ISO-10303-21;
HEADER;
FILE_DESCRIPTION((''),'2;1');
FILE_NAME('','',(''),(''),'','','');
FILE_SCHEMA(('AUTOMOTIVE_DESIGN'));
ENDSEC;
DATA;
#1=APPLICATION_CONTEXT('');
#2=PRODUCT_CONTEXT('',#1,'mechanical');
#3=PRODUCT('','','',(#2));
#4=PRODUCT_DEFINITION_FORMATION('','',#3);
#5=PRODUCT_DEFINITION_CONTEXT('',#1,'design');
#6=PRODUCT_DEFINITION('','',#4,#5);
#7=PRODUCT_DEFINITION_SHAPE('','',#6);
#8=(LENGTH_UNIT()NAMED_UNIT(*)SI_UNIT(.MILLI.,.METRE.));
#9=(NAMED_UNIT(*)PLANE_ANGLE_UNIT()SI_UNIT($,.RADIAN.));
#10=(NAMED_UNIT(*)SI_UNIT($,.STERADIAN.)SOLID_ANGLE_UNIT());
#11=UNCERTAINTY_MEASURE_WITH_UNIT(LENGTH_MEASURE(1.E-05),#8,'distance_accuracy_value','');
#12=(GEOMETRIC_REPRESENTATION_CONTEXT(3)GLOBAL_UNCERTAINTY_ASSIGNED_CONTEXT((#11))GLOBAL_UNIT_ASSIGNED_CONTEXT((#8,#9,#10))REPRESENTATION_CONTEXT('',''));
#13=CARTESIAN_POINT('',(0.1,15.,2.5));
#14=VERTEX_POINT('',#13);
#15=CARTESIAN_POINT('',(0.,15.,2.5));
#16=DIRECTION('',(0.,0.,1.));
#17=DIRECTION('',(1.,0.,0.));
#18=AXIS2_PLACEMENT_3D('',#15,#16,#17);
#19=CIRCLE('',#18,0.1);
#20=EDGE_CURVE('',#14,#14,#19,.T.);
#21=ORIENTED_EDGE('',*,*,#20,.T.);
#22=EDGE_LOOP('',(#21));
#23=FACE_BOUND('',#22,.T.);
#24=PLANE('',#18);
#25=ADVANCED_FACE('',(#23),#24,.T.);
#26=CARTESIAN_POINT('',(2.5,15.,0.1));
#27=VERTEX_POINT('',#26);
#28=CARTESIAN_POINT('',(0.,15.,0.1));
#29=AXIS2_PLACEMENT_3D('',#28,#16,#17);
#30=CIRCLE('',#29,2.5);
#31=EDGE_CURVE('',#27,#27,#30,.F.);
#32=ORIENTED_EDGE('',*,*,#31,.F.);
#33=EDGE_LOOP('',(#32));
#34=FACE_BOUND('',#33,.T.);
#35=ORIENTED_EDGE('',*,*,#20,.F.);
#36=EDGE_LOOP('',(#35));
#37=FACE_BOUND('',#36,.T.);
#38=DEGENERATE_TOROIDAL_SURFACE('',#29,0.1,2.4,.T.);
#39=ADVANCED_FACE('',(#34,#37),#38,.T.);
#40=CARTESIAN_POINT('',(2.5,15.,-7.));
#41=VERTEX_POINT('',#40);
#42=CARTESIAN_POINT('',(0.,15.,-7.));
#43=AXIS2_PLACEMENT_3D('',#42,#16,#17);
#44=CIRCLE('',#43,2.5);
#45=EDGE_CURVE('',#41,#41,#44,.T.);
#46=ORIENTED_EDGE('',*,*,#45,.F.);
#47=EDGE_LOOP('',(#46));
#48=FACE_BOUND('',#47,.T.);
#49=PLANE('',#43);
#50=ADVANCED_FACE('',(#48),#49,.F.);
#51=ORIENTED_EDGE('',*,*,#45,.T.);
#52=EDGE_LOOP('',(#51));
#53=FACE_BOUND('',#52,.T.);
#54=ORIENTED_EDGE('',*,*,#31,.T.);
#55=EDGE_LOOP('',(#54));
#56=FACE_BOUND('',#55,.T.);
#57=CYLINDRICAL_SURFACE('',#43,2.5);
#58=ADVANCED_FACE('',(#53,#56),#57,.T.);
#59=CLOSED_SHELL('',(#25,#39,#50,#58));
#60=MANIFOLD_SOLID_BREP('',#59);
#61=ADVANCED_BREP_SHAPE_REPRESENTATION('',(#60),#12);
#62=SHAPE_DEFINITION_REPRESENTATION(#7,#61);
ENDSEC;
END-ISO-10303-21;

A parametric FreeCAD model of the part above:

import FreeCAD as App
import Part
import Sketcher
from FreeCAD import Vector


def edges_at(feature, points):
    """Names of the edges that pass closest to the given points."""
    edges = feature.Shape.Edges
    near = lambda p: min(range(len(edges)), key=lambda i: edges[i].distToShape(Part.Vertex(*p))[0])
    return sorted({f"Edge{near(p) + 1}" for p in points})

doc = App.newDocument("Part")
body = doc.addObject("PartDesign::Body", "Body")

# Sketch on XY plane
sketch1 = body.newObject("Sketcher::SketchObject", "Sketch")
sketch1.AttachmentSupport = (doc.getObject("XY_Plane"), [""])
sketch1.MapMode = "FlatFace"
sketch1.addGeometry(Part.Circle(Vector(0, 15, 0), Vector(0, 0, 1), 2.5), False)
sketch1.addConstraint([
    Sketcher.Constraint("PointOnObject", 0, 3, -2),
    Sketcher.Constraint("Diameter", 0, 5.0),
    Sketcher.Constraint("DistanceY", -1, 1, 0, 3, 15.0),
])
pad1 = body.newObject("PartDesign::Pad", "Pad")
pad1.Profile = sketch1
pad1.Type = "TwoLengths"
pad1.Length = 2.5
pad1.Length2 = 7
doc.recompute()

fillet = body.newObject("PartDesign::Fillet", "Fillet")
fillet.Base = (pad1, edges_at(pad1, [(-2.5, 15, 2.5)]))
fillet.Radius = 2.4

doc.recompute()
